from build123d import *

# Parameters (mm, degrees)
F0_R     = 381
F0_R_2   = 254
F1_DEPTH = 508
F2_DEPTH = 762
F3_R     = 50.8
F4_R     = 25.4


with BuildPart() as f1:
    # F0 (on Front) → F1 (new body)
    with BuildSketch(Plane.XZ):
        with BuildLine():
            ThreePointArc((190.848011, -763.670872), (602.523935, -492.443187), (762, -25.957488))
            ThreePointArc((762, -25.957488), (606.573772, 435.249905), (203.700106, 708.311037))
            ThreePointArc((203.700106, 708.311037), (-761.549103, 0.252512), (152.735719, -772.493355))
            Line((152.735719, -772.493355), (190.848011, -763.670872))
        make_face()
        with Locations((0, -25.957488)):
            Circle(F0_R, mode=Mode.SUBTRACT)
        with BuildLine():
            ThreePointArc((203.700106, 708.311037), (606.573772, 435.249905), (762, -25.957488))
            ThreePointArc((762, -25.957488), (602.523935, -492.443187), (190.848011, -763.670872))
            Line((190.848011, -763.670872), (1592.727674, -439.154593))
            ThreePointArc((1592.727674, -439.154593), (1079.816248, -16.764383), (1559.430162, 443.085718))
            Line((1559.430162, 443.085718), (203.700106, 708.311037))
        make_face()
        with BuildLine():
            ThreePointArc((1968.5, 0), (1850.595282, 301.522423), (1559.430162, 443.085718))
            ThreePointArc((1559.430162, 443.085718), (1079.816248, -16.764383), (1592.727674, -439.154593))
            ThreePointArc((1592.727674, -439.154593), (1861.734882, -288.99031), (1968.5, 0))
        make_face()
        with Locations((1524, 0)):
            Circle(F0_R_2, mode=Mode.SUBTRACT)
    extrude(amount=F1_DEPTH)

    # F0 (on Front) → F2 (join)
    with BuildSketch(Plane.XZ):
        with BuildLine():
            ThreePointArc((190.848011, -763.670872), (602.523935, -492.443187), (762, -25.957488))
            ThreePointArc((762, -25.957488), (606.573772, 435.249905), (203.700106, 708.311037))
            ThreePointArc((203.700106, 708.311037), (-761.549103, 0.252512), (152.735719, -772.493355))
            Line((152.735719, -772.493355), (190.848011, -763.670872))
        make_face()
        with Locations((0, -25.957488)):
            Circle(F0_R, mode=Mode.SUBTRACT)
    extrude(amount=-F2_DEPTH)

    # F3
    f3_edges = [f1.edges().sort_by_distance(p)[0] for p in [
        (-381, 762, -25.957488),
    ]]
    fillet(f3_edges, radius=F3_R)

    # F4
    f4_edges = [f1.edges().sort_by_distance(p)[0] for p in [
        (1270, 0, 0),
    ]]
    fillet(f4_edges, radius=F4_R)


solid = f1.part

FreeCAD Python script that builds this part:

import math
import FreeCAD as App
import Part
import Sketcher
Q = App.Units.Quantity


def edges_at(feature, points):
    """Names of the edges that pass closest to the given points."""
    edges = feature.Shape.Edges
    near = lambda p: min(range(len(edges)), key=lambda i: edges[i].distToShape(Part.Vertex(*p))[0])
    return sorted({f"Edge{near(p) + 1}" for p in points})

doc = App.newDocument("Part")
body = doc.addObject("PartDesign::Body", "Body")

sketch1 = body.newObject("Sketcher::SketchObject", "Sketch")
sketch1.AttachmentSupport = (doc.getObject("XZ_Plane"), [""])
sketch1.MapMode = "FlatFace"
sketch1.addGeometry(Part.LineSegment(App.Vector(153, -772, 0), App.Vector(191, -764, 0)), False)
sketch1.addGeometry(Part.LineSegment(App.Vector(191, -764, 0), App.Vector(1593, -439, 0)), False)
sketch1.addGeometry(Part.ArcOfCircle(Part.Circle(App.Vector(1524, 0, 0), App.Vector(0, 0, 1), 445), math.radians(-81), math.radians(0)), False)
sketch1.addGeometry(Part.ArcOfCircle(Part.Circle(App.Vector(1524, 0, 0), App.Vector(0, 0, 1), 445), math.radians(0), math.radians(85)), False)
sketch1.addGeometry(Part.LineSegment(App.Vector(1559, 443, 0), App.Vector(204, 708, 0)), False)
sketch1.addGeometry(Part.ArcOfCircle(Part.Circle(App.Vector(0, -26, 0), App.Vector(0, 0, 1), 762), math.radians(74), math.radians(282)), False)
sketch1.addGeometry(Part.Circle(App.Vector(0, -26, 0), App.Vector(0, 0, 1), 381), False)
sketch1.addGeometry(Part.Circle(App.Vector(1524, 0, 0), App.Vector(0, 0, 1), 254), False)
sketch1.addConstraint(Sketcher.Constraint("Coincident", 0, 2, 1, 1))
sketch1.addConstraint(Sketcher.Constraint("Coincident", 1, 2, 2, 1))
sketch1.addConstraint(Sketcher.Constraint("Tangent", 2, 2, 3, 1))
sketch1.addConstraint(Sketcher.Constraint("Coincident", 3, 2, 4, 1))
sketch1.addConstraint(Sketcher.Constraint("Coincident", 4, 2, 5, 1))
sketch1.addConstraint(Sketcher.Constraint("Coincident", 5, 2, 0, 1))
sketch1.addConstraint(Sketcher.Constraint("Coincident", 6, 3, 5, 3))
sketch1.addConstraint(Sketcher.Constraint("Coincident", 7, 3, 2, 3))
sketch1.addConstraint(Sketcher.Constraint("Equal", 2, 3))
sketch1.addConstraint(Sketcher.Constraint("PointOnObject", 2, 3, -1))
sketch1.addConstraint(Sketcher.Constraint("PointOnObject", 5, 3, -2))
sketch1.addConstraint(Sketcher.Constraint("PointOnObject", 2, 2, -1))
sketch1.addConstraint(Sketcher.Constraint("Parallel", 0, 1))
sketch1.addConstraint(Sketcher.Constraint("Diameter", 6, Q("30 in")))
sketch1.addConstraint(Sketcher.Constraint("Diameter", 7, Q("20 in")))
sketch1.addConstraint(Sketcher.Constraint("Radius", 5, Q("30 in")))
sketch1.addConstraint(Sketcher.Constraint("Radius", 2, Q("17.5 in")))
sketch1.addConstraint(Sketcher.Constraint("DistanceX", -1, 1, 2, 3, Q("60 in")))
sketch1.addConstraint(Sketcher.Constraint("Distance", 0, 39.12011))
sketch1.addConstraint(Sketcher.Constraint("Distance", 4, 1381.429859))
sketch1.addConstraint(Sketcher.Constraint("DistanceY", 5, 3, -1, 1, 25.957488))
sketch1.addConstraint(Sketcher.Constraint("DistanceX", -1, 1, 0, 2, 190.848011))
sketch1.addConstraint(Sketcher.Constraint("DistanceY", 0, 2, 1, 2, 324.516279))
sketch1.addConstraint(Sketcher.Constraint("DistanceY", 3, 2, 4, 2, 265.225319))
pad1 = body.newObject("PartDesign::Pad", "Pad")
pad1.Profile = sketch1
pad1.Length = Q("20 in")

sketch2 = body.newObject("Sketcher::SketchObject", "Sketch001")
sketch2.AttachmentSupport = (doc.getObject("XZ_Plane"), [""])
sketch2.MapMode = "FlatFace"
sketch2.addGeometry(Part.ArcOfCircle(Part.Circle(App.Vector(0, -26, 0), App.Vector(0, 0, 1), 762), math.radians(-75), math.radians(0)), False)
sketch2.addGeometry(Part.ArcOfCircle(Part.Circle(App.Vector(0, -26, 0), App.Vector(0, 0, 1), 762), math.radians(0), math.radians(74)), False)
sketch2.addGeometry(Part.ArcOfCircle(Part.Circle(App.Vector(0, -26, 0), App.Vector(0, 0, 1), 762), math.radians(74), math.radians(282)), False)
sketch2.addGeometry(Part.LineSegment(App.Vector(153, -772, 0), App.Vector(191, -764, 0)), False)
sketch2.addGeometry(Part.Circle(App.Vector(0, -26, 0), App.Vector(0, 0, 1), 381), False)
sketch2.addConstraint(Sketcher.Constraint("Coincident", 0, 2, 1, 1))
sketch2.addConstraint(Sketcher.Constraint("Coincident", 1, 2, 2, 1))
sketch2.addConstraint(Sketcher.Constraint("Coincident", 2, 2, 3, 1))
sketch2.addConstraint(Sketcher.Constraint("Coincident", 3, 2, 0, 1))
sketch2.addConstraint(Sketcher.Constraint("Coincident", 1, 3, 0, 3))
sketch2.addConstraint(Sketcher.Constraint("Coincident", 2, 3, 0, 3))
sketch2.addConstraint(Sketcher.Constraint("Coincident", 4, 3, 0, 3))
sketch2.addConstraint(Sketcher.Constraint("PointOnObject", 0, 3, -2))
sketch2.addConstraint(Sketcher.Constraint("Horizontal", 4, 3, 0, 2))
sketch2.addConstraint(Sketcher.Constraint("Diameter", 4, Q("30 in")))
sketch2.addConstraint(Sketcher.Constraint("Radius", 0, Q("30.0000001 in")))
sketch2.addConstraint(Sketcher.Constraint("Distance", 3, 39.12011))
sketch2.addConstraint(Sketcher.Constraint("DistanceY", 2, 3, -1, 1, 25.957488))
sketch2.addConstraint(Sketcher.Constraint("DistanceX", -1, 1, 3, 2, 190.848011))
sketch2.addConstraint(Sketcher.Constraint("DistanceX", -1, 1, 1, 2, 203.700106))
pad2 = body.newObject("PartDesign::Pad", "Pad001")
pad2.Profile = sketch2
pad2.Length = Q("30 in")
pad2.Reversed = True
doc.recompute()

fillet = body.newObject("PartDesign::Fillet", "Fillet")
fillet.Base = (pad2, edges_at(pad2, [(-381, 762, -25.957)]))
fillet.Radius = Q("2 in")
doc.recompute()

fillet2 = body.newObject("PartDesign::Fillet", "Fillet001")
fillet2.Base = (fillet, edges_at(fillet, [(1270, 0, 0)]))
fillet2.Radius = Q("1 in")

doc.recompute()
